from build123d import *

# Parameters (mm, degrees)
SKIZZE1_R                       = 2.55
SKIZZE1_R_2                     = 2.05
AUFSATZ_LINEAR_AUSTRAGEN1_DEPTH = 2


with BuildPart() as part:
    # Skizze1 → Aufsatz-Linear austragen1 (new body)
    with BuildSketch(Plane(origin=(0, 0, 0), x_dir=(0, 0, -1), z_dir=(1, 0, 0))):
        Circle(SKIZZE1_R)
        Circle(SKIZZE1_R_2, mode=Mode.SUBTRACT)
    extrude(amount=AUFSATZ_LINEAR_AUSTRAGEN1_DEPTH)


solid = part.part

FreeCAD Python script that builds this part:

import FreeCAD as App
import Part
import Sketcher
from FreeCAD import Vector
Q = App.Units.Quantity

doc = App.newDocument("Part")
params = doc.addObject("Spreadsheet::Sheet", "Params")
for row, (alias, value) in enumerate([
    ("sketch1_diameter", "5.1 mm"),
    ("sketch1_diameter2", "4.1 mm"),
    ("pad1_length", "2 mm"),
], start=1):
    params.set(f"A{row}", alias)
    params.set(f"B{row}", "=" + value)
    params.setAlias(f"B{row}", alias)

body = doc.addObject("PartDesign::Body", "Body")

# Sketch on YZ plane
sketch1 = body.newObject("Sketcher::SketchObject", "Sketch")
sketch1.AttachmentSupport = (doc.getObject("YZ_Plane"), [""])
sketch1.MapMode = "FlatFace"
sketch1.addGeometry(Part.Circle(Vector(0, 0, 0), Vector(0, 0, 1), 2.5), False)
sketch1.addGeometry(Part.Circle(Vector(0, 0, 0), Vector(0, 0, 1), 2), False)
sketch1.addConstraint(Sketcher.Constraint("Coincident", 0, 3, -1, 1))
sketch1.addConstraint(Sketcher.Constraint("Coincident", 1, 3, -1, 1))
sketch1.addConstraint(Sketcher.Constraint("Diameter", 0, Q("5.1 mm")))
sketch1.addConstraint(Sketcher.Constraint("Diameter", 1, Q("4.1 mm")))
sketch1.setExpression("Constraints[2]", "Params.sketch1_diameter")
sketch1.setExpression("Constraints[3]", "Params.sketch1_diameter2")
pad1 = body.newObject("PartDesign::Pad", "Pad")
pad1.Profile = sketch1
pad1.setExpression("Length", "Params.pad1_length")

doc.recompute()
